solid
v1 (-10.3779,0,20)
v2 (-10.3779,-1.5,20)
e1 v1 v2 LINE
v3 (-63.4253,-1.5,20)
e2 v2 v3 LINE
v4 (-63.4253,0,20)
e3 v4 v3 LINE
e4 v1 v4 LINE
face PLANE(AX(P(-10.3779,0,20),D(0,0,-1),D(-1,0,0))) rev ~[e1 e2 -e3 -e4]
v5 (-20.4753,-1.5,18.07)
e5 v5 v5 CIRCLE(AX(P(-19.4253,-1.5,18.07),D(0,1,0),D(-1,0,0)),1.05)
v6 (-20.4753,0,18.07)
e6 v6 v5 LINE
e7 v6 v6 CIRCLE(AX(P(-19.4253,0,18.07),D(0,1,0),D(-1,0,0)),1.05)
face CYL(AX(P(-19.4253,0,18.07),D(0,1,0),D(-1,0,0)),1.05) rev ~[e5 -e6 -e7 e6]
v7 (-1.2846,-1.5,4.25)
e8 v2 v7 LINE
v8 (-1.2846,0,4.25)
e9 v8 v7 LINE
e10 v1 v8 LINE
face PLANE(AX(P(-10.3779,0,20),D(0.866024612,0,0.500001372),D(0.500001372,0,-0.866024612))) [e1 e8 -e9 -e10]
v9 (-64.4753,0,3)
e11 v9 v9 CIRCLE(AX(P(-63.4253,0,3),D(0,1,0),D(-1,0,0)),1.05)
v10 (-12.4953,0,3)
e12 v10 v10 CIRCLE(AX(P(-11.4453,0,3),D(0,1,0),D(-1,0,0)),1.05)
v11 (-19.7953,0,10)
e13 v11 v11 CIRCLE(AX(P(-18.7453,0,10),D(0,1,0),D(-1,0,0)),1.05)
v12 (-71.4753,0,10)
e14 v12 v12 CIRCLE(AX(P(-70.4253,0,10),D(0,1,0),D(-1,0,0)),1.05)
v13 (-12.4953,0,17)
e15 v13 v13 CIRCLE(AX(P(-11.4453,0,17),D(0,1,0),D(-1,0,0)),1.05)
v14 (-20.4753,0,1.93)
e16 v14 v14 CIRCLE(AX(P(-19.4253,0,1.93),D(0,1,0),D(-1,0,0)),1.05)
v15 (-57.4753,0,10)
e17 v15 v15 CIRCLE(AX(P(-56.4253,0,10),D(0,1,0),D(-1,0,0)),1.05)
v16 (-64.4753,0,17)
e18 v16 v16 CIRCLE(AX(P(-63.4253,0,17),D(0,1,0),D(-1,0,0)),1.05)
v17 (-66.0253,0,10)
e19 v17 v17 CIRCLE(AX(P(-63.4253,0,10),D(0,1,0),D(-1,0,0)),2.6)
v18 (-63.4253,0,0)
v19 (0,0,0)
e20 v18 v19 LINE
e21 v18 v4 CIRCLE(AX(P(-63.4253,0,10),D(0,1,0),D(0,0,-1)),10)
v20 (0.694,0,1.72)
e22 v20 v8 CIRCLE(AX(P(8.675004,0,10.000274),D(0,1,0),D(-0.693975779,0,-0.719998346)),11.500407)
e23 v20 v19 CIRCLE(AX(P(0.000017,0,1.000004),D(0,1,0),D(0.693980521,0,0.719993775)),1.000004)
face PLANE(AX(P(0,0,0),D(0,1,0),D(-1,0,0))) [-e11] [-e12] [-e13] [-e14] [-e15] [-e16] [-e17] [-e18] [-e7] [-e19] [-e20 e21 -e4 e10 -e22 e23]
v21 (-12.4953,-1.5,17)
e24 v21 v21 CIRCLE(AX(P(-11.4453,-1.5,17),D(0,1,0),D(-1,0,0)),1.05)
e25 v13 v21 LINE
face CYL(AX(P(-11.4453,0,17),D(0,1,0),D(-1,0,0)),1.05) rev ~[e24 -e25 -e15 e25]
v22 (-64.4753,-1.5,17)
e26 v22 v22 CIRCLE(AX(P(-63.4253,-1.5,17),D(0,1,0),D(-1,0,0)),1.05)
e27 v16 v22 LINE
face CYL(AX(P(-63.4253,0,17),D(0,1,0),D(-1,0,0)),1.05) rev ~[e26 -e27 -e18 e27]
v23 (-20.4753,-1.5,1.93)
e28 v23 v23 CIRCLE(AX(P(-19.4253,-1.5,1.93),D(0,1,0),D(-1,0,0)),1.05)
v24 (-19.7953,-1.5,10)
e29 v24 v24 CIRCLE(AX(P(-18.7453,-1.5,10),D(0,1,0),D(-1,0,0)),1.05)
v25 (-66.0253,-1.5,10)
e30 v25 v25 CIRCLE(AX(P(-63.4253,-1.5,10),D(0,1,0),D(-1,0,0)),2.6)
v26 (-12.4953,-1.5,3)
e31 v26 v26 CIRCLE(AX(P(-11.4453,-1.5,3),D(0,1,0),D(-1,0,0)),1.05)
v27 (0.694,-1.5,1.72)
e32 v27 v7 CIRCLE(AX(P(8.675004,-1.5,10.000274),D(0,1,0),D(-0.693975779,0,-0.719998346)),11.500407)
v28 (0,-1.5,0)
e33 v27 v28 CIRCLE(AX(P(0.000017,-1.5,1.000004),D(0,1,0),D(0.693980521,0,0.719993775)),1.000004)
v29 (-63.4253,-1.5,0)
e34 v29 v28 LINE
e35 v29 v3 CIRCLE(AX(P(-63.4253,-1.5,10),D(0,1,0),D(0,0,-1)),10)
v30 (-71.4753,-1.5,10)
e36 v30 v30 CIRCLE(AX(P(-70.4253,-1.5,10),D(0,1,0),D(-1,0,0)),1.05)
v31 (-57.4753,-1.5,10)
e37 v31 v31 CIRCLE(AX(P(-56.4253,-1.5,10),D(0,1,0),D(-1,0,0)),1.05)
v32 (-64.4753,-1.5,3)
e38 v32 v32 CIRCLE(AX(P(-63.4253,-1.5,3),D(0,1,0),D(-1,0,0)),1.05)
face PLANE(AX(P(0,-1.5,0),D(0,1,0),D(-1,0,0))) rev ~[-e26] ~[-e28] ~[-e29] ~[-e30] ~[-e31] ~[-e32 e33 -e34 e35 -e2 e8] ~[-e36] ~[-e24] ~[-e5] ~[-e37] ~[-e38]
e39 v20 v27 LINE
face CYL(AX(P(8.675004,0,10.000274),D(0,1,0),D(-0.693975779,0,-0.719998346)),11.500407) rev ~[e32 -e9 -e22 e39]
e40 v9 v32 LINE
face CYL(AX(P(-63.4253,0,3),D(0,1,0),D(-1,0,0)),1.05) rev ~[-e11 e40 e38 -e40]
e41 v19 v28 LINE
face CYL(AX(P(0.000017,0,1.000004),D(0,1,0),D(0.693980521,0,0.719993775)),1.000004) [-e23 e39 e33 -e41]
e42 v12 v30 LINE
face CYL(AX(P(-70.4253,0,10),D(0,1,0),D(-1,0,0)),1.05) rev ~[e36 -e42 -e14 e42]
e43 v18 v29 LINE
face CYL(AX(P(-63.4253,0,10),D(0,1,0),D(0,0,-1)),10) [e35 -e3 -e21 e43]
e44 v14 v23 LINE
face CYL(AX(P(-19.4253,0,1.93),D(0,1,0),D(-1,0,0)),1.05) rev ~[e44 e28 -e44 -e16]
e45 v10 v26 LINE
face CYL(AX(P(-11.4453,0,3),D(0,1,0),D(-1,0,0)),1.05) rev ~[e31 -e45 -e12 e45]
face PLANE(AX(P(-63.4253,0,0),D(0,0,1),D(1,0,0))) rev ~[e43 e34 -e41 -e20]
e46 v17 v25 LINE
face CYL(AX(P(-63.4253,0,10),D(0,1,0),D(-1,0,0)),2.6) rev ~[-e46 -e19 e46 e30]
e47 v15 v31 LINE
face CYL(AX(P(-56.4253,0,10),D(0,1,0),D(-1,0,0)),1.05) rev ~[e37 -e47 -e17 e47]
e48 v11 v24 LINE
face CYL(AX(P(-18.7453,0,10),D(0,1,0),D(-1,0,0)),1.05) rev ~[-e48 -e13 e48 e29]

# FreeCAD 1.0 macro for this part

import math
import FreeCAD as App
import Part
import Sketcher
from FreeCAD import Vector
Q = App.Units.Quantity

doc = App.newDocument("Part")
body = doc.addObject("PartDesign::Body", "Body")

sketch1 = body.newObject("Sketcher::SketchObject", "Sketch")
sketch1.AttachmentSupport = (doc.getObject("XZ_Plane"), [""])
sketch1.MapMode = "FlatFace"
sketch1.addGeometry([
    Part.LineSegment(Vector(-63.4, 20, 0), Vector(-10.4, 20, 0)),
    Part.LineSegment(Vector(-10.4, 20, 0), Vector(-1.3, 4.2, 0)),
    Part.ArcOfCircle(Part.Circle(Vector(8.7, 10, 0), Vector(0, 0, 1), 11.5), math.radians(-150), math.radians(-133.95)),
    Part.ArcOfCircle(Part.Circle(Vector(0, 1, 0), Vector(0, 0, 1), 1), math.radians(-90), math.radians(46)),
    Part.LineSegment(Vector(0, 0, 0), Vector(-63.4, 0, 0)),
    Part.ArcOfCircle(Part.Circle(Vector(-63.4, 10, 0), Vector(0, 0, 1), 10), math.radians(90), math.radians(270)),
    Part.Circle(Vector(-11.4, 3, 0), Vector(0, 0, 1), 1.1),
    Part.Circle(Vector(-19.4, 1.9, 0), Vector(0, 0, 1), 1.1),
    Part.Circle(Vector(-63.4, 3, 0), Vector(0, 0, 1), 1.1),
    Part.Circle(Vector(-18.7, 10, 0), Vector(0, 0, 1), 1.1),
    Part.Circle(Vector(-11.4, 17, 0), Vector(0, 0, 1), 1.1),
    Part.Circle(Vector(-19.4, 18.1, 0), Vector(0, 0, 1), 1.1),
    Part.Circle(Vector(-56.4, 10, 0), Vector(0, 0, 1), 1.1),
    Part.Circle(Vector(-63.4, 10, 0), Vector(0, 0, 1), 2.6),
    Part.Circle(Vector(-70.4, 10, 0), Vector(0, 0, 1), 1.1),
    Part.Circle(Vector(-63.4, 17, 0), Vector(0, 0, 1), 1.1),
], False)
sketch1.addConstraint([
    Sketcher.Constraint("Coincident", 0, 2, 1, 1),
    Sketcher.Constraint("Tangent", 1, 2, 2, 1),
    Sketcher.Constraint("Tangent", 2, 2, 3, 2),
    Sketcher.Constraint("Tangent", 3, 1, 4, 1),
    Sketcher.Constraint("Tangent", 4, 2, 5, 2),
    Sketcher.Constraint("Tangent", 5, 1, 0, 1),
    Sketcher.Constraint("Horizontal", 0),
    Sketcher.Constraint("Horizontal", 4),
    Sketcher.Constraint("Coincident", 3, 1, -1, 1),
    Sketcher.Constraint("Coincident", 13, 3, 5, 3),
    Sketcher.Constraint("Equal", 6, 7),
    Sketcher.Constraint("Equal", 7, 8),
    Sketcher.Constraint("Equal", 8, 9),
    Sketcher.Constraint("Equal", 9, 10),
    Sketcher.Constraint("Equal", 10, 11),
    Sketcher.Constraint("Equal", 11, 12),
    Sketcher.Constraint("Equal", 12, 14),
    Sketcher.Constraint("Equal", 14, 15),
    Sketcher.Constraint("Horizontal", 2, 3, 5, 3),
    Sketcher.Constraint("Horizontal", 6, 3, 8, 3),
    Sketcher.Constraint("Horizontal", 5, 3, 9, 3),
    Sketcher.Constraint("Horizontal", 9, 3, 12, 3),
    Sketcher.Constraint("Horizontal", 13, 3, 14, 3),
    Sketcher.Constraint("Horizontal", 10, 3, 15, 3),
    Sketcher.Constraint("Vertical", 5, 3, 8, 3),
    Sketcher.Constraint("Vertical", 6, 3, 10, 3),
    Sketcher.Constraint("Vertical", 7, 3, 11, 3),
    Sketcher.Constraint("Vertical", 13, 3, 15, 3),
    Sketcher.Constraint("Radius", 3, 1.0),
    Sketcher.Constraint("Radius", 5, 10.0),
    Sketcher.Constraint("Diameter", 6, 2.1),
    Sketcher.Constraint("Diameter", 13, 5.2),
    Sketcher.Constraint("Radius", 2, 11.5),
    Sketcher.Constraint("Angle", 1, Q("-60 deg")),
    Sketcher.Constraint("DistanceY", -1, 1, 6, 3, 3.0),
    Sketcher.Constraint("DistanceY", -1, 1, 10, 3, 17.0),
    Sketcher.Constraint("DistanceX", 5, 3, 7, 3, 44.0),
    Sketcher.Constraint("DistanceX", 5, 3, 12, 3, 7.0),
    Sketcher.Constraint("DistanceX", 14, 3, 5, 3, 7.0),
    Sketcher.Constraint("DistanceX", 5, 3, 2, 3, 72.1),
    Sketcher.Constraint("DistanceX", 9, 3, 6, 3, 7.3),
    Sketcher.Constraint("DistanceY", -1, 1, 7, 3, 1.93),
    Sketcher.Constraint("DistanceY", -1, 1, 11, 3, 18.07),
    Sketcher.Constraint("DistanceX", 6, 3, 2, 3, 20.12),
])
pad1 = body.newObject("PartDesign::Pad", "Pad")
pad1.Profile = sketch1
pad1.Length = 1.5

doc.recompute()
